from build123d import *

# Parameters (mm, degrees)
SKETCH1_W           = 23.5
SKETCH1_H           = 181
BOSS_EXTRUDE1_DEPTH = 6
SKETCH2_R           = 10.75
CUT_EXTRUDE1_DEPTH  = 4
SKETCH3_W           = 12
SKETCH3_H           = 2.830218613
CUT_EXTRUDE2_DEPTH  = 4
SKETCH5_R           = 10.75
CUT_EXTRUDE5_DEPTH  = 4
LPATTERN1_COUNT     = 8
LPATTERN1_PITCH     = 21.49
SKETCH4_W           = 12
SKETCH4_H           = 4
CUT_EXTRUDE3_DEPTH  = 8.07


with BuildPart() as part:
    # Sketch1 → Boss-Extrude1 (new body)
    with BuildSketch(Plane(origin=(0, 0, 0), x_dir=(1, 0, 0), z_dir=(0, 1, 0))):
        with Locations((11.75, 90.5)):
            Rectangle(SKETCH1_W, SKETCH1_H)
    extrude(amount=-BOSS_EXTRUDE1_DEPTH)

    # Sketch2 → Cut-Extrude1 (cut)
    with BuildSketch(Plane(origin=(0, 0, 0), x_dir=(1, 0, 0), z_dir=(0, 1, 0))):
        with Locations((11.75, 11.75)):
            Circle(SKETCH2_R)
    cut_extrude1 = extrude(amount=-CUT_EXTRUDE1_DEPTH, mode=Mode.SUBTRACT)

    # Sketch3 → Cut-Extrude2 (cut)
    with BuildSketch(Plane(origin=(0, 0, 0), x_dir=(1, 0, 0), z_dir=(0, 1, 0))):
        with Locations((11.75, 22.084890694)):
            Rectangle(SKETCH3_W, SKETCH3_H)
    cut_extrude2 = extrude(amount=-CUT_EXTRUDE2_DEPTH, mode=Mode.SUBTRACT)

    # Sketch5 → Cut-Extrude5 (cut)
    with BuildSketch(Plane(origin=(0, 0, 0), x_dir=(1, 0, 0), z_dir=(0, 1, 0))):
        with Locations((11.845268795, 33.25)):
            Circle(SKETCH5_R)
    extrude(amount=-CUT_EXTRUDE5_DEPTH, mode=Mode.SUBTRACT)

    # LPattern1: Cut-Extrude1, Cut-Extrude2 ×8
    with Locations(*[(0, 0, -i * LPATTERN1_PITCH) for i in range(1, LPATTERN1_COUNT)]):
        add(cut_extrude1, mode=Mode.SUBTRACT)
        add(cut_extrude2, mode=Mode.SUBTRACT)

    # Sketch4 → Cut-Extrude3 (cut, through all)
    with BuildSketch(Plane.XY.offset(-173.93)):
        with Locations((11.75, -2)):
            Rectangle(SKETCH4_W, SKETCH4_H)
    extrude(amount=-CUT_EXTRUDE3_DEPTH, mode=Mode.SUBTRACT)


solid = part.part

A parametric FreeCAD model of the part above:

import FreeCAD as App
import Part
import Sketcher
from FreeCAD import Vector

doc = App.newDocument("Part")
body = doc.addObject("PartDesign::Body", "Body")

# Sketch on XZ plane
sketch1 = body.newObject("Sketcher::SketchObject", "Sketch")
sketch1.AttachmentSupport = (doc.getObject("XZ_Plane"), [""])
sketch1.MapMode = "FlatFace"
sketch1.addGeometry([
    Part.LineSegment(Vector(0, -181, 0), Vector(0, 0, 0)),
    Part.LineSegment(Vector(0, 0, 0), Vector(24, 0, 0)),
    Part.LineSegment(Vector(24, 0, 0), Vector(24, -181, 0)),
    Part.LineSegment(Vector(24, -181, 0), Vector(0, -181, 0)),
], False)
sketch1.addConstraint([
    Sketcher.Constraint("Coincident", 0, 2, 1, 1),
    Sketcher.Constraint("Coincident", 1, 2, 2, 1),
    Sketcher.Constraint("Coincident", 2, 2, 3, 1),
    Sketcher.Constraint("Coincident", 3, 2, 0, 1),
    Sketcher.Constraint("Vertical", 0),
    Sketcher.Constraint("Horizontal", 1),
    Sketcher.Constraint("Vertical", 2),
    Sketcher.Constraint("Horizontal", 3),
    Sketcher.Constraint("Coincident", 0, 2, -1, 1),
    Sketcher.Constraint("DistanceY", 0, 1, 0, 2, 181.0),
    Sketcher.Constraint("DistanceX", 1, 1, 1, 2, 23.5),
])
pad1 = body.newObject("PartDesign::Pad", "Pad")
pad1.Profile = sketch1
pad1.Length = 6

# Sketch on XZ plane
sketch2 = body.newObject("Sketcher::SketchObject", "Sketch001")
sketch2.AttachmentSupport = (doc.getObject("XZ_Plane"), [""])
sketch2.MapMode = "FlatFace"
sketch2.addGeometry(Part.Circle(Vector(12, -12, 0), Vector(0, 0, 1), 11), False)
sketch2.addConstraint([
    Sketcher.Constraint("Diameter", 0, 21.5),
    Sketcher.Constraint("DistanceX", -1, 1, 0, 3, 11.75),
    Sketcher.Constraint("DistanceY", 0, 3, -1, 1, 11.75),
])
pocket1 = body.newObject("PartDesign::Pocket", "Pocket")
pocket1.Profile = sketch2
pocket1.Length = 4
pocket1.Reversed = True

# Sketch on XZ plane
sketch3 = body.newObject("Sketcher::SketchObject", "Sketch002")
sketch3.AttachmentSupport = (doc.getObject("XZ_Plane"), [""])
sketch3.MapMode = "FlatFace"
sketch3.addGeometry([
    Part.LineSegment(Vector(5.8, -23.5, 0), Vector(5.8, -20.7, 0)),
    Part.LineSegment(Vector(5.8, -20.7, 0), Vector(17.8, -20.7, 0)),
    Part.LineSegment(Vector(17.8, -20.7, 0), Vector(17.8, -23.5, 0)),
    Part.LineSegment(Vector(17.8, -23.5, 0), Vector(5.8, -23.5, 0)),
], False)
sketch3.addConstraint([
    Sketcher.Constraint("Coincident", 0, 2, 1, 1),
    Sketcher.Constraint("Coincident", 1, 2, 2, 1),
    Sketcher.Constraint("Coincident", 2, 2, 3, 1),
    Sketcher.Constraint("Coincident", 3, 2, 0, 1),
    Sketcher.Constraint("Vertical", 0),
    Sketcher.Constraint("Horizontal", 1),
    Sketcher.Constraint("Vertical", 2),
    Sketcher.Constraint("Horizontal", 3),
    Sketcher.Constraint("DistanceX", 1, 1, 1, 2, 12.0),
    Sketcher.Constraint("DistanceY", 2, 2, -1, 1, 23.5),
    Sketcher.Constraint("DistanceX", -1, 1, 0, 2, 5.75),
    Sketcher.Constraint("DistanceY", 0, 1, 0, 2, 2.830219),
])
pocket2 = body.newObject("PartDesign::Pocket", "Pocket001")
pocket2.Profile = sketch3
pocket2.Length = 4
pocket2.Reversed = True

# Sketch on XZ plane
sketch4 = body.newObject("Sketcher::SketchObject", "Sketch003")
sketch4.AttachmentSupport = (doc.getObject("XZ_Plane"), [""])
sketch4.MapMode = "FlatFace"
sketch4.addGeometry(Part.Circle(Vector(12, -33, 0), Vector(0, 0, 1), 11), False)
sketch4.addConstraint([
    Sketcher.Constraint("Diameter", 0, 21.5),
    Sketcher.Constraint("DistanceY", 0, 3, -1, 1, 33.25),
    Sketcher.Constraint("DistanceX", -1, 1, 0, 3, 11.845269),
])
pocket3 = body.newObject("PartDesign::Pocket", "Pocket002")
pocket3.Profile = sketch4
pocket3.Length = 4
pocket3.Reversed = True
doc.recompute()

linearpattern = body.newObject("PartDesign::LinearPattern", "LinearPattern")
linearpattern.Originals = [pocket1, pocket2]
linearpattern.Direction = (doc.getObject("Z_Axis"), [""])
linearpattern.Mode = "offset"
linearpattern.Offset = 21.49
linearpattern.Occurrences = 8
linearpattern.Reversed = True
body.Tip = linearpattern

# Sketch on XY plane
sketch5 = body.newObject("Sketcher::SketchObject", "Sketch004")
sketch5.AttachmentSupport = (doc.getObject("XY_Plane"), [""])
sketch5.MapMode = "FlatFace"
sketch5.AttachmentOffset = App.Placement(Vector(0, 0, -173.93), App.Rotation())
sketch5.addGeometry([
    Part.LineSegment(Vector(5.8, 0, 0), Vector(5.8, -4, 0)),
    Part.LineSegment(Vector(5.8, -4, 0), Vector(17.8, -4, 0)),
    Part.LineSegment(Vector(17.8, -4, 0), Vector(17.8, 0, 0)),
    Part.LineSegment(Vector(17.8, 0, 0), Vector(5.8, 0, 0)),
], False)
sketch5.addConstraint([
    Sketcher.Constraint("Coincident", 0, 2, 1, 1),
    Sketcher.Constraint("Coincident", 1, 2, 2, 1),
    Sketcher.Constraint("Coincident", 2, 2, 3, 1),
    Sketcher.Constraint("Coincident", 3, 2, 0, 1),
    Sketcher.Constraint("Vertical", 0),
    Sketcher.Constraint("Horizontal", 1),
    Sketcher.Constraint("Vertical", 2),
    Sketcher.Constraint("Horizontal", 3),
    Sketcher.Constraint("PointOnObject", 2, 2, -1),
    Sketcher.Constraint("DistanceX", 1, 1, 1, 2, 12.0),
    Sketcher.Constraint("DistanceY", 0, 2, 0, 1, 4.0),
    Sketcher.Constraint("DistanceX", -1, 1, 0, 2, 5.75),
])
pocket4 = body.newObject("PartDesign::Pocket", "Pocket003")
pocket4.Profile = sketch5
pocket4.Type = "ThroughAll"

doc.recompute()
